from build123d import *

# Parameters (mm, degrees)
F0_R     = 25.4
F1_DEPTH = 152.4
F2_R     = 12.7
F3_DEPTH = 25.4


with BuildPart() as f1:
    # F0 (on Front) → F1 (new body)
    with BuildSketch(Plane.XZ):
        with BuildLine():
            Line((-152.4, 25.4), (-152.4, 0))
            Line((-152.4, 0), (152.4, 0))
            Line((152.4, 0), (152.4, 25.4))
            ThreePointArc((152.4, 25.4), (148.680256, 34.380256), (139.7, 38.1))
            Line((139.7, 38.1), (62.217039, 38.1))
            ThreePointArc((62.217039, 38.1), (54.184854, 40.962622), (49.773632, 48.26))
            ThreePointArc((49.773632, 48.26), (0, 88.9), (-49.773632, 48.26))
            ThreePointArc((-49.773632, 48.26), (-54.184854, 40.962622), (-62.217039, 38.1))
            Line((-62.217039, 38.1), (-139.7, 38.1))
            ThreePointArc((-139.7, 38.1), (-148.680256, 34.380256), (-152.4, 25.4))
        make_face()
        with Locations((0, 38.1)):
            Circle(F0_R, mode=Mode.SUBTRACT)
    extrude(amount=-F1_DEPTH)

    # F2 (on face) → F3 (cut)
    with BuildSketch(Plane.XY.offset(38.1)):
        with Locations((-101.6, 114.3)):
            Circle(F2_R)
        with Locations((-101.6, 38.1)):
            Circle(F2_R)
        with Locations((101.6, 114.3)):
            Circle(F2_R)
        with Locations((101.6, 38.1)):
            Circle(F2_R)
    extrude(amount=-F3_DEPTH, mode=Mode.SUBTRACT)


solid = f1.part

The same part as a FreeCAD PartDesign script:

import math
import FreeCAD as App
import Part
import Sketcher
from FreeCAD import Vector
Q = App.Units.Quantity

doc = App.newDocument("Part")
params = doc.addObject("Spreadsheet::Sheet", "Params")
for row, (alias, value) in enumerate([
    ("sketch1_diameter", "2 in"),
    ("sketch1_radius", "2 in"),
    ("sketch1_radius2", "0.5 in"),
    ("sketch1_radius3", "0.4999999 in"),
    ("sketch1_width", "12 in"),
    ("pad1_length", "6 in"),
    ("sketch2_diameter", "1 in"),
    ("pocket1_length", "1 in"),
], start=1):
    params.set(f"A{row}", alias)
    params.set(f"B{row}", "=" + value)
    params.setAlias(f"B{row}", alias)

body = doc.addObject("PartDesign::Body", "Body")

# Sketch on XZ plane
sketch1 = doc.addObject("Sketcher::SketchObject", "Sketch")
body.addObject(sketch1)
sketch1.AttachmentSupport = (doc.XZ_Plane, [""])
sketch1.MapMode = "FlatFace"
sketch1.addGeometry(Part.LineSegment(Vector(-152, 25, 0), Vector(-152, 0, 0)), False)
sketch1.addGeometry(Part.LineSegment(Vector(-152, 0, 0), Vector(152, 0, 0)), False)
sketch1.addGeometry(Part.LineSegment(Vector(152, 0, 0), Vector(152, 25, 0)), False)
sketch1.addGeometry(Part.ArcOfCircle(Part.Circle(Vector(140, 25, 0), Vector(0, 0, 1), 13), math.radians(0), math.radians(90)), False)
sketch1.addGeometry(Part.LineSegment(Vector(140, 38, 0), Vector(62, 38, 0)), False)
sketch1.addGeometry(Part.ArcOfCircle(Part.Circle(Vector(62, 51, 0), Vector(0, 0, 1), 13), math.radians(-168), math.radians(-90)), False)
sketch1.addGeometry(Part.ArcOfCircle(Part.Circle(Vector(0, 38, 0), Vector(0, 0, 1), 51), math.radians(12), math.radians(168)), False)
sketch1.addGeometry(Part.ArcOfCircle(Part.Circle(Vector(-62, 51, 0), Vector(0, 0, 1), 13), math.radians(-90), math.radians(-12)), False)
sketch1.addGeometry(Part.LineSegment(Vector(-62, 38, 0), Vector(-140, 38, 0)), False)
sketch1.addGeometry(Part.ArcOfCircle(Part.Circle(Vector(-140, 25, 0), Vector(0, 0, 1), 13), math.radians(90), math.radians(180)), False)
sketch1.addGeometry(Part.Circle(Vector(0, 38, 0), Vector(0, 0, 1), 25), False)
sketch1.addConstraint(Sketcher.Constraint("Coincident", 0, 2, 1, 1))
sketch1.addConstraint(Sketcher.Constraint("Coincident", 1, 2, 2, 1))
sketch1.addConstraint(Sketcher.Constraint("Tangent", 2, 2, 3, 1))
sketch1.addConstraint(Sketcher.Constraint("Tangent", 3, 2, 4, 1))
sketch1.addConstraint(Sketcher.Constraint("Tangent", 4, 2, 5, 2))
sketch1.addConstraint(Sketcher.Constraint("Tangent", 5, 1, 6, 1))
sketch1.addConstraint(Sketcher.Constraint("Tangent", 6, 2, 7, 2))
sketch1.addConstraint(Sketcher.Constraint("Tangent", 7, 1, 8, 1))
sketch1.addConstraint(Sketcher.Constraint("Tangent", 8, 2, 9, 1))
sketch1.addConstraint(Sketcher.Constraint("Tangent", 9, 2, 0, 1))
sketch1.addConstraint(Sketcher.Constraint("Vertical", 0))
sketch1.addConstraint(Sketcher.Constraint("Horizontal", 1))
sketch1.addConstraint(Sketcher.Constraint("Vertical", 2))
sketch1.addConstraint(Sketcher.Constraint("Horizontal", 4))
sketch1.addConstraint(Sketcher.Constraint("Horizontal", 8))
sketch1.addConstraint(Sketcher.Constraint("Coincident", 10, 3, 6, 3))
sketch1.addConstraint(Sketcher.Constraint("Equal", 5, 7))
sketch1.addConstraint(Sketcher.Constraint("Equal", 3, 9))
sketch1.addConstraint(Sketcher.Constraint("Symmetric", 0, 2, 1, 2, -1, 1))
sketch1.addConstraint(Sketcher.Constraint("Symmetric", 5, 3, 7, 3, -2))
sketch1.addConstraint(Sketcher.Constraint("Horizontal", 10, 3, 3, 2))
sketch1.addConstraint(Sketcher.Constraint("Diameter", 10, Q("2 in")))
sketch1.addConstraint(Sketcher.Constraint("Radius", 6, Q("2 in")))
sketch1.addConstraint(Sketcher.Constraint("Radius", 3, Q("0.5 in")))
sketch1.addConstraint(Sketcher.Constraint("Radius", 5, Q("0.4999999 in")))
sketch1.addConstraint(Sketcher.Constraint("DistanceX", 1, 1, 1, 2, Q("12 in")))
sketch1.addConstraint(Sketcher.Constraint("DistanceY", 0, 2, 0, 1, Q("1 in")))
sketch1.setExpression("Constraints[21]", "Params.sketch1_diameter")
sketch1.setExpression("Constraints[22]", "Params.sketch1_radius")
sketch1.setExpression("Constraints[23]", "Params.sketch1_radius2")
sketch1.setExpression("Constraints[24]", "Params.sketch1_radius3")
sketch1.setExpression("Constraints[25]", "Params.sketch1_width")
pad1 = doc.addObject("PartDesign::Pad", "Pad")
body.addObject(pad1)
pad1.Profile = sketch1
pad1.setExpression("Length", "Params.pad1_length")
pad1.Reversed = True

# Sketch on XY plane
sketch2 = doc.addObject("Sketcher::SketchObject", "Sketch001")
body.addObject(sketch2)
sketch2.AttachmentSupport = (doc.XY_Plane, [""])
sketch2.MapMode = "FlatFace"
sketch2.AttachmentOffset = App.Placement(Vector(0, 0, 1.5 * 25.4), App.Rotation())
sketch2.addGeometry(Part.Circle(Vector(-102, 114, 0), Vector(0, 0, 1), 13), False)
sketch2.addGeometry(Part.Circle(Vector(-102, 38, 0), Vector(0, 0, 1), 13), False)
sketch2.addGeometry(Part.Circle(Vector(102, 114, 0), Vector(0, 0, 1), 13), False)
sketch2.addGeometry(Part.Circle(Vector(102, 38, 0), Vector(0, 0, 1), 13), False)
sketch2.addConstraint(Sketcher.Constraint("Equal", 0, 1))
sketch2.addConstraint(Sketcher.Constraint("Equal", 1, 2))
sketch2.addConstraint(Sketcher.Constraint("Equal", 2, 3))
sketch2.addConstraint(Sketcher.Constraint("Symmetric", 0, 3, 2, 3, -2))
sketch2.addConstraint(Sketcher.Constraint("Symmetric", 1, 3, 3, 3, -2))
sketch2.addConstraint(Sketcher.Constraint("Vertical", 0, 3, 1, 3))
sketch2.addConstraint(Sketcher.Constraint("Diameter", 0, Q("1 in")))
sketch2.addConstraint(Sketcher.Constraint("DistanceX", 0, 3, -1, 1, Q("4 in")))
sketch2.addConstraint(Sketcher.Constraint("DistanceY", 1, 3, 0, 3, Q("3 in")))
sketch2.addConstraint(Sketcher.Constraint("DistanceY", -1, 1, 0, 3, Q("4.5 in")))
sketch2.setExpression("Constraints[6]", "Params.sketch2_diameter")
pocket1 = doc.addObject("PartDesign::Pocket", "Pocket")
body.addObject(pocket1)
pocket1.Profile = sketch2
pocket1.setExpression("Length", "Params.pocket1_length")

doc.recompute()
